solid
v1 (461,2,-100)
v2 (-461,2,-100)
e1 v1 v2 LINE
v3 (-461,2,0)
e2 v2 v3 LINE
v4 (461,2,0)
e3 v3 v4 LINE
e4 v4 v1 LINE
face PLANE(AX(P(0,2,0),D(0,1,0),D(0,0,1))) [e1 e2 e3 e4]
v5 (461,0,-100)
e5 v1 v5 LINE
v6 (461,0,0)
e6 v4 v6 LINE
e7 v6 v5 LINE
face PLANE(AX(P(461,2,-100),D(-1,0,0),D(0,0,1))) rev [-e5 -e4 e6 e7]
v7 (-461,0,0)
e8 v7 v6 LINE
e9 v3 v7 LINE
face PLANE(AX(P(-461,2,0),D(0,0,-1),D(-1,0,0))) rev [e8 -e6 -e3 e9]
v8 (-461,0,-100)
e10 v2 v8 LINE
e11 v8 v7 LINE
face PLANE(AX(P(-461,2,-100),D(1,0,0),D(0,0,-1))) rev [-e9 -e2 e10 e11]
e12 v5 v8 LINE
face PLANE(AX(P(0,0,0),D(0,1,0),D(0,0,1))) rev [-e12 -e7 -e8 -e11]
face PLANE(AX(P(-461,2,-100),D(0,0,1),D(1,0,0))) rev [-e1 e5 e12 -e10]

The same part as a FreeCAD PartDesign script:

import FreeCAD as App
import Part
import Sketcher
from FreeCAD import Vector
Q = App.Units.Quantity

doc = App.newDocument("Part")
body = doc.addObject("PartDesign::Body", "Body")

# Sketch on XZ plane
sketch1 = body.newObject("Sketcher::SketchObject", "Sketch")
sketch1.AttachmentSupport = (doc.getObject("XZ_Plane"), [""])
sketch1.MapMode = "FlatFace"
sketch1.addGeometry([
    Part.LineSegment(Vector(-461, -100, 0), Vector(-461, 0, 0)),
    Part.LineSegment(Vector(-461, 0, 0), Vector(461, 0, 0)),
    Part.LineSegment(Vector(461, 0, 0), Vector(461, -100, 0)),
    Part.LineSegment(Vector(461, -100, 0), Vector(-461, -100, 0)),
], False)
sketch1.addConstraint([
    Sketcher.Constraint("Coincident", 0, 2, 1, 1),
    Sketcher.Constraint("Coincident", 1, 2, 2, 1),
    Sketcher.Constraint("Coincident", 2, 2, 3, 1),
    Sketcher.Constraint("Coincident", 3, 2, 0, 1),
    Sketcher.Constraint("Vertical", 0),
    Sketcher.Constraint("Horizontal", 1),
    Sketcher.Constraint("Vertical", 2),
    Sketcher.Constraint("Horizontal", 3),
    Sketcher.Constraint("Symmetric", 0, 2, 1, 2, -1, 1),
    Sketcher.Constraint("DistanceX", 1, 1, 1, 2, Q("922 mm")),
    Sketcher.Constraint("DistanceY", 0, 1, 0, 2, Q("100 mm")),
])
pad1 = body.newObject("PartDesign::Pad", "Pad")
pad1.Profile = sketch1
pad1.Length = 2
pad1.Reversed = True

doc.recompute()
